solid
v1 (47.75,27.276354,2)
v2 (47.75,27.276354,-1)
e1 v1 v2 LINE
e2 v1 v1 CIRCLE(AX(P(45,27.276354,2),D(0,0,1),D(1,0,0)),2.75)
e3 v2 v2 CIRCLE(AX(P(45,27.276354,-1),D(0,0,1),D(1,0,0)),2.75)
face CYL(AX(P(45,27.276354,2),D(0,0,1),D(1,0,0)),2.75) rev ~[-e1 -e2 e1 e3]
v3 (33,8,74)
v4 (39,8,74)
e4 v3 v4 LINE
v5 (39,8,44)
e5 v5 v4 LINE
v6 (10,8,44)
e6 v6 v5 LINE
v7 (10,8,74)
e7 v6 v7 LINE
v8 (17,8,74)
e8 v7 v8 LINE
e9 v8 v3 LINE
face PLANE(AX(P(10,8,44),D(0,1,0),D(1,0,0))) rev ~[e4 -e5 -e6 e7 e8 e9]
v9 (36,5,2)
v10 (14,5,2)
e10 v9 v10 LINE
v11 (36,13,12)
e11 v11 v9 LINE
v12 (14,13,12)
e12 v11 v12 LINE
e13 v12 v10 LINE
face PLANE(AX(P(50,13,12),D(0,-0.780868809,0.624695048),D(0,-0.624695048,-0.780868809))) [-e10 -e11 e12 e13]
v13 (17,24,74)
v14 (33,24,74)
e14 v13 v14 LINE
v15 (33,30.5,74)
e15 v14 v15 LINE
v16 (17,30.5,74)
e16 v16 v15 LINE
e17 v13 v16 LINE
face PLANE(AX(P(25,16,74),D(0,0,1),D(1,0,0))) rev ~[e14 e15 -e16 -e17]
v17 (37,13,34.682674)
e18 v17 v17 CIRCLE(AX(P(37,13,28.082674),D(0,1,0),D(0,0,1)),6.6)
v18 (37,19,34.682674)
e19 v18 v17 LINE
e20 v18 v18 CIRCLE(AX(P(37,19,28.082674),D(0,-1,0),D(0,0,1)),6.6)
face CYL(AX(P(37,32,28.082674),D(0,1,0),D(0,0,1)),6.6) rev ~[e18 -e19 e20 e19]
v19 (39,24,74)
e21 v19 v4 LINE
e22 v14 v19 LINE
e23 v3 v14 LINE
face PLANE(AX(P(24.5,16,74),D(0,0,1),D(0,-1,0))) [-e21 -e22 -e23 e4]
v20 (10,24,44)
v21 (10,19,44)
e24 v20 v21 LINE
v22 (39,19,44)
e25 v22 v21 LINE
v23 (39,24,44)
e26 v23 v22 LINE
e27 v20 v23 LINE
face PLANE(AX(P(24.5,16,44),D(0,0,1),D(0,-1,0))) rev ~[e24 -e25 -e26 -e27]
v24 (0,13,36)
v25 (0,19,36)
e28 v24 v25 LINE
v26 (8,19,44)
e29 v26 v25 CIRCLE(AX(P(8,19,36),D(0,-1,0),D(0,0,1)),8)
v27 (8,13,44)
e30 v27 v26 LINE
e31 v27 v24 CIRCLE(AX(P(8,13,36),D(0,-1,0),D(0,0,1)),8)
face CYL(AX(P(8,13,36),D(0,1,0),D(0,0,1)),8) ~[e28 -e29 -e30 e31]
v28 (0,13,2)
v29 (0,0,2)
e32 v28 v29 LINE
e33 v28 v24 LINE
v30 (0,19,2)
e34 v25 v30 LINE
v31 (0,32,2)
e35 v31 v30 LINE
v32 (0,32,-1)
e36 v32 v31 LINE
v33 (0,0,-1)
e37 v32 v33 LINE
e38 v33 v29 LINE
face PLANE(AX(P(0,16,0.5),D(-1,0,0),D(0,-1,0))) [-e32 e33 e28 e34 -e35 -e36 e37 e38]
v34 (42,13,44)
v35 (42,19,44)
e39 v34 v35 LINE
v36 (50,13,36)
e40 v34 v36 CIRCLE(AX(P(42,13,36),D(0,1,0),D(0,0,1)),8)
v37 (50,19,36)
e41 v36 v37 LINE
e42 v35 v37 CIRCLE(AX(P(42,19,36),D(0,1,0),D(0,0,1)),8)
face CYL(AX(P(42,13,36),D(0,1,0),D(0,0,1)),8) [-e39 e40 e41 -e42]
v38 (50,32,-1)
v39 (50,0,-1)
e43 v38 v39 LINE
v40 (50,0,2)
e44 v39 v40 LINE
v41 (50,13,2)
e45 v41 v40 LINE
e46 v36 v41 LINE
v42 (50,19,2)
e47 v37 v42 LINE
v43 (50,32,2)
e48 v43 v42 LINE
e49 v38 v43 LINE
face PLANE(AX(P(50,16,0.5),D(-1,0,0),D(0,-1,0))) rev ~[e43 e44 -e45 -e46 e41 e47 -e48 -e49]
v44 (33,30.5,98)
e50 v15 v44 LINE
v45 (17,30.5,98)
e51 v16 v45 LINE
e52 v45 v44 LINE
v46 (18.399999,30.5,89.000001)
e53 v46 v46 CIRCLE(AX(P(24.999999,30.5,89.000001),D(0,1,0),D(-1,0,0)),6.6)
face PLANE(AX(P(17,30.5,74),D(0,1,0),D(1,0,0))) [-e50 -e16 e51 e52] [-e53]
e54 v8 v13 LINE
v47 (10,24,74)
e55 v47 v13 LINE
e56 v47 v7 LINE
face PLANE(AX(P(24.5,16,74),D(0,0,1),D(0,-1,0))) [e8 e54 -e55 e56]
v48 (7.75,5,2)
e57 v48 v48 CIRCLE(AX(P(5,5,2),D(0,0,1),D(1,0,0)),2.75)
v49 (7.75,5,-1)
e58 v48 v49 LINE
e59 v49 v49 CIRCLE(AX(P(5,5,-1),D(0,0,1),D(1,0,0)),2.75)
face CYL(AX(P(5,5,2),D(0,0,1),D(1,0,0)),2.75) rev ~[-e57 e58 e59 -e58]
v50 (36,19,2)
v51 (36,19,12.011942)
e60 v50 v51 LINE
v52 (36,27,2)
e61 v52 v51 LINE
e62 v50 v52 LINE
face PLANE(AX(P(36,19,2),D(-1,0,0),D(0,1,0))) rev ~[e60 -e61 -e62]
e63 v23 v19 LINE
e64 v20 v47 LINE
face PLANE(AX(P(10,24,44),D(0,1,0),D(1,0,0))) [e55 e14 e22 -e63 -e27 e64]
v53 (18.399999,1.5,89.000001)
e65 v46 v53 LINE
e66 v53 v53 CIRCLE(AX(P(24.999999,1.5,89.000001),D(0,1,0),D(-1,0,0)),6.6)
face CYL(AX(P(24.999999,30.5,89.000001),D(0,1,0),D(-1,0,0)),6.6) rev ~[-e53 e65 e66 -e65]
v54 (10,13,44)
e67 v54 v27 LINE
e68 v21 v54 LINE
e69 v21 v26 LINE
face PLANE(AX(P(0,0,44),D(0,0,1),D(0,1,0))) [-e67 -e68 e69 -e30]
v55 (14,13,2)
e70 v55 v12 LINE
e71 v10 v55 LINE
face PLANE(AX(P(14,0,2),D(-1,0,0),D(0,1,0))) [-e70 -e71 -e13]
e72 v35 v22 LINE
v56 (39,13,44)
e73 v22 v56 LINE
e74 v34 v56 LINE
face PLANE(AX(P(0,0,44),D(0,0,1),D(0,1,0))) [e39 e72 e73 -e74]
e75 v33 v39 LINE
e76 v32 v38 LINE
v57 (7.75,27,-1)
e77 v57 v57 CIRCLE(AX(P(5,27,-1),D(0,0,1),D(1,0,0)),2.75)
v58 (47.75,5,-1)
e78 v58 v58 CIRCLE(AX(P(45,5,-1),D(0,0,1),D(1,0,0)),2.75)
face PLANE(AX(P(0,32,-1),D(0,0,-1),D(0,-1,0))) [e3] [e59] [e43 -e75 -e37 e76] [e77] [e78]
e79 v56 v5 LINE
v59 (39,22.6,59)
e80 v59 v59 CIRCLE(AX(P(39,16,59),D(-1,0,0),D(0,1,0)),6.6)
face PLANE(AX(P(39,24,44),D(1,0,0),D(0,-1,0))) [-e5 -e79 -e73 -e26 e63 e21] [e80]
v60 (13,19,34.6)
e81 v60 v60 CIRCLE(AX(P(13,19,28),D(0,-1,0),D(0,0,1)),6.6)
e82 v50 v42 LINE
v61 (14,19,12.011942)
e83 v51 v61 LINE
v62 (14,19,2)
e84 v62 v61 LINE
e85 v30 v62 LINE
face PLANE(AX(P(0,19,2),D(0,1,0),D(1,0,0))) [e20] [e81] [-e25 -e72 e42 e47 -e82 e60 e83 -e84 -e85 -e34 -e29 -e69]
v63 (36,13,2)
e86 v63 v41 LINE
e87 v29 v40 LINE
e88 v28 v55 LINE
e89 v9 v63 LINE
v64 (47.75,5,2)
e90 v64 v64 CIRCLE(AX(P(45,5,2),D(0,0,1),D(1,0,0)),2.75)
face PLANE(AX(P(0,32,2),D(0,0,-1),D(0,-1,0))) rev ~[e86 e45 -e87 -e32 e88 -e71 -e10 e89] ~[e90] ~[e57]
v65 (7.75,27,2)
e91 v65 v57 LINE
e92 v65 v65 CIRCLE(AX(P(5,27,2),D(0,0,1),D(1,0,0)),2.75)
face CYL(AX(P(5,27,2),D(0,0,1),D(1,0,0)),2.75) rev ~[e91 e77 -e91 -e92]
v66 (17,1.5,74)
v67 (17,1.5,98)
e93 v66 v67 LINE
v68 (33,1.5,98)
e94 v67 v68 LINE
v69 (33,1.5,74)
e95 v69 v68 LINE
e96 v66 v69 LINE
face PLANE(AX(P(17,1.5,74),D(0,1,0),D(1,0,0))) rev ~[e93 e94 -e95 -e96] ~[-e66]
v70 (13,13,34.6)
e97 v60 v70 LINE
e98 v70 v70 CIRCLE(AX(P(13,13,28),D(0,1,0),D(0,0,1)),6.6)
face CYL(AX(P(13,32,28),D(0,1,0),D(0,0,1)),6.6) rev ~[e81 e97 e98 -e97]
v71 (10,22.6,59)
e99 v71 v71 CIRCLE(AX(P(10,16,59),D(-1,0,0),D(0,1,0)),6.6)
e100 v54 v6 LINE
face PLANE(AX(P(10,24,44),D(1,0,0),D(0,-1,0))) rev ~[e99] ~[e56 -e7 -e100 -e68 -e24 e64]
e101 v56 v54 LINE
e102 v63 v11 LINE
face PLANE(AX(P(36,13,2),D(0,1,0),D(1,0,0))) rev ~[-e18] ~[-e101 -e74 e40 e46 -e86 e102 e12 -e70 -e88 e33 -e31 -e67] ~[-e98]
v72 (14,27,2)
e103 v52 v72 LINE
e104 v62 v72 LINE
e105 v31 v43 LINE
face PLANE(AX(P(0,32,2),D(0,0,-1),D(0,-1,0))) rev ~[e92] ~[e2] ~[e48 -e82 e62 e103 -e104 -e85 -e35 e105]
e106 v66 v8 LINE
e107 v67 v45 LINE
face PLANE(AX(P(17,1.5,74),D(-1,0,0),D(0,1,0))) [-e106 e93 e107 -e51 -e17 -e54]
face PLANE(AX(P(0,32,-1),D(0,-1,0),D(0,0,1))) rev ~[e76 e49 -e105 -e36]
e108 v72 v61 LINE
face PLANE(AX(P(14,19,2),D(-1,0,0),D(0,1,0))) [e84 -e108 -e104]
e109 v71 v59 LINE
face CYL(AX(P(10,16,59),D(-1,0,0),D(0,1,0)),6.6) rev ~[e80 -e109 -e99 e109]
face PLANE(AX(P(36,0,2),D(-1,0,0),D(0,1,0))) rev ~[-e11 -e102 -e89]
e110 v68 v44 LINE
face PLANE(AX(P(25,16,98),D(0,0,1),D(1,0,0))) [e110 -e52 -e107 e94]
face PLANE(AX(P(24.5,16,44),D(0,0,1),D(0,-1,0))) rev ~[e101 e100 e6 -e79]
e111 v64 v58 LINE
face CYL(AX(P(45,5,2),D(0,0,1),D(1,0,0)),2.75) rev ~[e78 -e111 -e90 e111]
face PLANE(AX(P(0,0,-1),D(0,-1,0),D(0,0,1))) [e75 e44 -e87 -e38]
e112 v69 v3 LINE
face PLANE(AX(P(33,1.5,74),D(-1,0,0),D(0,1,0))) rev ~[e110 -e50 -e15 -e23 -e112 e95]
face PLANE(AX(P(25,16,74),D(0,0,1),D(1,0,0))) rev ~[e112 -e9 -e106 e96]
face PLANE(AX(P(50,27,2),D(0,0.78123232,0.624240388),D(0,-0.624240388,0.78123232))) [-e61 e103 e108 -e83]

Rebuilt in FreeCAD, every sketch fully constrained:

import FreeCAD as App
import Part
import Sketcher
from FreeCAD import Vector
Q = App.Units.Quantity


def edges_at(feature, points):
    """Names of the edges that pass closest to the given points."""
    edges = feature.Shape.Edges
    near = lambda p: min(range(len(edges)), key=lambda i: edges[i].distToShape(Part.Vertex(*p))[0])
    return sorted({f"Edge{near(p) + 1}" for p in points})

doc = App.newDocument("Part")
params = doc.addObject("Spreadsheet::Sheet", "Params")
for row, (alias, value) in enumerate([
    ("sketch1_width", "13 mm"),
    ("sketch1_width2", "5 mm"),
    ("sketch1_height", "42 mm"),
    ("pad1_length", "50 mm"),
    ("sketch2_width", "13 mm"),
    ("sketch2_width2", "5 mm"),
    ("sketch2_height", "32 mm"),
    ("sketch2_height2", "42 mm"),
    ("pad2_length", "50 mm"),
    ("sketch3_width", "14 mm"),
    ("sketch3_height", "13 mm"),
    ("pad3_length", "20 mm"),
    ("sketch4_width", "14 mm"),
    ("sketch4_height", "13 mm"),
    ("pad4_length", "20 mm"),
    ("sketch5_width", "14 mm"),
    ("sketch5_height", "13 mm"),
    ("pad5_length", "20 mm"),
    ("sketch6_width", "14 mm"),
    ("sketch6_height", "13 mm"),
    ("pad6_length", "20 mm"),
    ("sketch7_width", "32 mm"),
    ("sketch7_height", "3 mm"),
    ("pad7_length", "50 mm"),
    ("sketch8_diameter", "5.5 mm"),
    ("sketch9_width", "29 mm"),
    ("sketch9_height", "16 mm"),
    ("pad8_length", "30 mm"),
    ("sketch10_diameter", "13.2 mm"),
    ("sketch11_width", "16 mm"),
    ("sketch11_height", "29 mm"),
    ("pad9_length", "24 mm"),
    ("sketch12_diameter", "13.2 mm"),
    ("sketch13_width", "32 mm"),
    ("sketch13_height", "42 mm"),
    ("pad10_length", "50 mm"),
    ("sketch14_diameter", "13.2 mm"),
    ("fillet_radius", "8 mm"),
    ("fillet2_radius", "8 mm"),
], start=1):
    params.set(f"A{row}", alias)
    params.set(f"B{row}", "=" + value)
    params.setAlias(f"B{row}", alias)

body = doc.addObject("PartDesign::Body", "Body")

# Sketch on YZ plane
sketch1 = body.newObject("Sketcher::SketchObject", "Sketch")
sketch1.AttachmentSupport = (doc.getObject("YZ_Plane"), [""])
sketch1.MapMode = "FlatFace"
sketch1.AttachmentOffset = App.Placement(Vector(0, 0, 50), App.Rotation())
sketch1.addGeometry([
    Part.LineSegment(Vector(32, 44, 0), Vector(19, 44, 0)),  # 0
    Part.LineSegment(Vector(19, 44, 0), Vector(19, 12, 0)),  # 1
    Part.LineSegment(Vector(19, 12, 0), Vector(27, 2, 0)),  # 2
    Part.LineSegment(Vector(27, 2, 0), Vector(32, 2, 0)),  # 3
    Part.LineSegment(Vector(32, 2, 0), Vector(32, 44, 0)),  # 4
], False)
sketch1.addConstraint([
    Sketcher.Constraint("Coincident", 0, 2, 1, 1),
    Sketcher.Constraint("Coincident", 1, 2, 2, 1),
    Sketcher.Constraint("Coincident", 2, 2, 3, 1),
    Sketcher.Constraint("Coincident", 3, 2, 4, 1),
    Sketcher.Constraint("Coincident", 4, 2, 0, 1),
    Sketcher.Constraint("Horizontal", 0),
    Sketcher.Constraint("Vertical", 1),
    Sketcher.Constraint("Horizontal", 3),
    Sketcher.Constraint("Vertical", 4),
    Sketcher.Constraint("DistanceX", 0, 2, 0, 1, Q("13 mm")),
    Sketcher.Constraint("DistanceX", 3, 1, 3, 2, Q("5 mm")),
    Sketcher.Constraint("DistanceY", 4, 1, 4, 2, Q("42 mm")),
    Sketcher.Constraint("DistanceX", -1, 1, 0, 2, Q("19 mm")),
    Sketcher.Constraint("DistanceY", -1, 1, 0, 2, Q("44 mm")),
    Sketcher.Constraint("DistanceY", 1, 2, 1, 1, Q("31.988058 mm")),
])
sketch1.setExpression("Constraints[9]", "Params.sketch1_width")
sketch1.setExpression("Constraints[10]", "Params.sketch1_width2")
sketch1.setExpression("Constraints[11]", "Params.sketch1_height")
pad1 = body.newObject("PartDesign::Pad", "Pad")
pad1.Profile = sketch1
pad1.setExpression("Length", "Params.pad1_length")
pad1.Reversed = True
body2 = doc.addObject("PartDesign::Body", "Body001")

# Sketch on YZ plane
sketch2 = body2.newObject("Sketcher::SketchObject", "Sketch001")
sketch2.AttachmentSupport = (doc.getObject("YZ_Plane001"), [""])
sketch2.MapMode = "FlatFace"
sketch2.AttachmentOffset = App.Placement(Vector(0, 0, 50), App.Rotation())
sketch2.addGeometry([
    Part.LineSegment(Vector(13, 12, 0), Vector(13, 44, 0)),  # 0
    Part.LineSegment(Vector(13, 44, 0), Vector(0, 44, 0)),  # 1
    Part.LineSegment(Vector(0, 44, 0), Vector(0, 2, 0)),  # 2
    Part.LineSegment(Vector(0, 2, 0), Vector(5, 2, 0)),  # 3
    Part.LineSegment(Vector(5, 2, 0), Vector(13, 12, 0)),  # 4
], False)
sketch2.addConstraint([
    Sketcher.Constraint("Coincident", 0, 2, 1, 1),
    Sketcher.Constraint("Coincident", 1, 2, 2, 1),
    Sketcher.Constraint("Coincident", 2, 2, 3, 1),
    Sketcher.Constraint("Coincident", 3, 2, 4, 1),
    Sketcher.Constraint("Coincident", 4, 2, 0, 1),
    Sketcher.Constraint("Vertical", 0),
    Sketcher.Constraint("Horizontal", 1),
    Sketcher.Constraint("Vertical", 2),
    Sketcher.Constraint("Horizontal", 3),
    Sketcher.Constraint("PointOnObject", 1, 2, -2),
    Sketcher.Constraint("DistanceX", 1, 2, 1, 1, Q("13 mm")),
    Sketcher.Constraint("DistanceX", 3, 1, 3, 2, Q("5 mm")),
    Sketcher.Constraint("DistanceY", 0, 1, 0, 2, Q("32 mm")),
    Sketcher.Constraint("DistanceY", 2, 2, 2, 1, Q("42 mm")),
    Sketcher.Constraint("DistanceY", -1, 1, 0, 2, Q("44 mm")),
])
sketch2.setExpression("Constraints[10]", "Params.sketch2_width")
sketch2.setExpression("Constraints[11]", "Params.sketch2_width2")
sketch2.setExpression("Constraints[12]", "Params.sketch2_height")
sketch2.setExpression("Constraints[13]", "Params.sketch2_height2")
pad2 = body2.newObject("PartDesign::Pad", "Pad001")
pad2.Profile = sketch2
pad2.setExpression("Length", "Params.pad2_length")
pad2.Reversed = True
body3 = doc.addObject("PartDesign::Body", "Body002")

# Sketch on XY plane
sketch3 = body3.newObject("Sketcher::SketchObject", "Sketch002")
sketch3.AttachmentSupport = (doc.getObject("XY_Plane002"), [""])
sketch3.MapMode = "FlatFace"
sketch3.AttachmentOffset = App.Placement(Vector(0, 0, 2), App.Rotation())
sketch3.addGeometry([
    Part.LineSegment(Vector(0, 13, 0), Vector(0, 0, 0)),
    Part.LineSegment(Vector(0, 0, 0), Vector(14, 0, 0)),
    Part.LineSegment(Vector(14, 0, 0), Vector(14, 13, 0)),
    Part.LineSegment(Vector(14, 13, 0), Vector(0, 13, 0)),
], False)
sketch3.addConstraint([
    Sketcher.Constraint("Coincident", 0, 2, 1, 1),
    Sketcher.Constraint("Coincident", 1, 2, 2, 1),
    Sketcher.Constraint("Coincident", 2, 2, 3, 1),
    Sketcher.Constraint("Coincident", 3, 2, 0, 1),
    Sketcher.Constraint("Vertical", 0),
    Sketcher.Constraint("Horizontal", 1),
    Sketcher.Constraint("Vertical", 2),
    Sketcher.Constraint("Horizontal", 3),
    Sketcher.Constraint("Coincident", 0, 2, -1, 1),
    Sketcher.Constraint("DistanceX", 1, 1, 1, 2, Q("14 mm")),
    Sketcher.Constraint("DistanceY", 0, 2, 0, 1, Q("13 mm")),
])
sketch3.setExpression("Constraints[9]", "Params.sketch3_width")
sketch3.setExpression("Constraints[10]", "Params.sketch3_height")
pad3 = body3.newObject("PartDesign::Pad", "Pad002")
pad3.Profile = sketch3
pad3.setExpression("Length", "Params.pad3_length")
body4 = doc.addObject("PartDesign::Body", "Body003")

# Sketch on XY plane
sketch4 = body4.newObject("Sketcher::SketchObject", "Sketch003")
sketch4.AttachmentSupport = (doc.getObject("XY_Plane003"), [""])
sketch4.MapMode = "FlatFace"
sketch4.AttachmentOffset = App.Placement(Vector(0, 0, 2), App.Rotation())
sketch4.addGeometry([
    Part.LineSegment(Vector(0, 32, 0), Vector(0, 19, 0)),
    Part.LineSegment(Vector(0, 19, 0), Vector(14, 19, 0)),
    Part.LineSegment(Vector(14, 19, 0), Vector(14, 32, 0)),
    Part.LineSegment(Vector(14, 32, 0), Vector(0, 32, 0)),
], False)
sketch4.addConstraint([
    Sketcher.Constraint("Coincident", 0, 2, 1, 1),
    Sketcher.Constraint("Coincident", 1, 2, 2, 1),
    Sketcher.Constraint("Coincident", 2, 2, 3, 1),
    Sketcher.Constraint("Coincident", 3, 2, 0, 1),
    Sketcher.Constraint("Vertical", 0),
    Sketcher.Constraint("Horizontal", 1),
    Sketcher.Constraint("Vertical", 2),
    Sketcher.Constraint("Horizontal", 3),
    Sketcher.Constraint("PointOnObject", 0, 2, -2),
    Sketcher.Constraint("DistanceX", 1, 1, 1, 2, Q("14 mm")),
    Sketcher.Constraint("DistanceY", 0, 2, 0, 1, Q("13 mm")),
    Sketcher.Constraint("DistanceY", -1, 1, 0, 2, Q("19 mm")),
])
sketch4.setExpression("Constraints[9]", "Params.sketch4_width")
sketch4.setExpression("Constraints[10]", "Params.sketch4_height")
pad4 = body4.newObject("PartDesign::Pad", "Pad003")
pad4.Profile = sketch4
pad4.setExpression("Length", "Params.pad4_length")
body5 = doc.addObject("PartDesign::Body", "Body004")

# Sketch on XY plane
sketch5 = body5.newObject("Sketcher::SketchObject", "Sketch004")
sketch5.AttachmentSupport = (doc.getObject("XY_Plane004"), [""])
sketch5.MapMode = "FlatFace"
sketch5.AttachmentOffset = App.Placement(Vector(0, 0, 2), App.Rotation())
sketch5.addGeometry([
    Part.LineSegment(Vector(36, 13, 0), Vector(36, 0, 0)),
    Part.LineSegment(Vector(36, 0, 0), Vector(50, 0, 0)),
    Part.LineSegment(Vector(50, 0, 0), Vector(50, 13, 0)),
    Part.LineSegment(Vector(50, 13, 0), Vector(36, 13, 0)),
], False)
sketch5.addConstraint([
    Sketcher.Constraint("Coincident", 0, 2, 1, 1),
    Sketcher.Constraint("Coincident", 1, 2, 2, 1),
    Sketcher.Constraint("Coincident", 2, 2, 3, 1),
    Sketcher.Constraint("Coincident", 3, 2, 0, 1),
    Sketcher.Constraint("Vertical", 0),
    Sketcher.Constraint("Horizontal", 1),
    Sketcher.Constraint("Vertical", 2),
    Sketcher.Constraint("Horizontal", 3),
    Sketcher.Constraint("PointOnObject", 0, 2, -1),
    Sketcher.Constraint("DistanceX", 1, 1, 1, 2, Q("14 mm")),
    Sketcher.Constraint("DistanceY", 0, 2, 0, 1, Q("13 mm")),
    Sketcher.Constraint("DistanceX", -1, 1, 0, 2, Q("36 mm")),
])
sketch5.setExpression("Constraints[9]", "Params.sketch5_width")
sketch5.setExpression("Constraints[10]", "Params.sketch5_height")
pad5 = body5.newObject("PartDesign::Pad", "Pad004")
pad5.Profile = sketch5
pad5.setExpression("Length", "Params.pad5_length")
body6 = doc.addObject("PartDesign::Body", "Body005")

# Sketch on XY plane
sketch6 = body6.newObject("Sketcher::SketchObject", "Sketch005")
sketch6.AttachmentSupport = (doc.getObject("XY_Plane005"), [""])
sketch6.MapMode = "FlatFace"
sketch6.AttachmentOffset = App.Placement(Vector(0, 0, 2), App.Rotation())
sketch6.addGeometry([
    Part.LineSegment(Vector(36, 32, 0), Vector(36, 19, 0)),
    Part.LineSegment(Vector(36, 19, 0), Vector(50, 19, 0)),
    Part.LineSegment(Vector(50, 19, 0), Vector(50, 32, 0)),
    Part.LineSegment(Vector(50, 32, 0), Vector(36, 32, 0)),
], False)
sketch6.addConstraint([
    Sketcher.Constraint("Coincident", 0, 2, 1, 1),
    Sketcher.Constraint("Coincident", 1, 2, 2, 1),
    Sketcher.Constraint("Coincident", 2, 2, 3, 1),
    Sketcher.Constraint("Coincident", 3, 2, 0, 1),
    Sketcher.Constraint("Vertical", 0),
    Sketcher.Constraint("Horizontal", 1),
    Sketcher.Constraint("Vertical", 2),
    Sketcher.Constraint("Horizontal", 3),
    Sketcher.Constraint("DistanceX", 1, 1, 1, 2, Q("14 mm")),
    Sketcher.Constraint("DistanceY", 0, 2, 0, 1, Q("13 mm")),
    Sketcher.Constraint("DistanceX", -1, 1, 0, 2, Q("36 mm")),
    Sketcher.Constraint("DistanceY", -1, 1, 0, 2, Q("19 mm")),
])
sketch6.setExpression("Constraints[8]", "Params.sketch6_width")
sketch6.setExpression("Constraints[9]", "Params.sketch6_height")
pad6 = body6.newObject("PartDesign::Pad", "Pad005")
pad6.Profile = sketch6
pad6.setExpression("Length", "Params.pad6_length")
body7 = doc.addObject("PartDesign::Body", "Body006")

# Sketch on YZ plane
sketch7 = body7.newObject("Sketcher::SketchObject", "Sketch006")
sketch7.AttachmentSupport = (doc.getObject("YZ_Plane006"), [""])
sketch7.MapMode = "FlatFace"
sketch7.addGeometry([
    Part.LineSegment(Vector(32, 2, 0), Vector(32, -1, 0)),
    Part.LineSegment(Vector(32, -1, 0), Vector(0, -1, 0)),
    Part.LineSegment(Vector(0, -1, 0), Vector(0, 2, 0)),
    Part.LineSegment(Vector(0, 2, 0), Vector(32, 2, 0)),
], False)
sketch7.addConstraint([
    Sketcher.Constraint("Coincident", 0, 2, 1, 1),
    Sketcher.Constraint("Coincident", 1, 2, 2, 1),
    Sketcher.Constraint("Coincident", 2, 2, 3, 1),
    Sketcher.Constraint("Coincident", 3, 2, 0, 1),
    Sketcher.Constraint("Vertical", 0),
    Sketcher.Constraint("Horizontal", 1),
    Sketcher.Constraint("Vertical", 2),
    Sketcher.Constraint("Horizontal", 3),
    Sketcher.Constraint("PointOnObject", 1, 2, -2),
    Sketcher.Constraint("DistanceX", 1, 2, 1, 1, Q("32 mm")),
    Sketcher.Constraint("DistanceY", 0, 2, 0, 1, Q("3 mm")),
    Sketcher.Constraint("DistanceY", 0, 2, -1, 1, Q("1 mm")),
])
sketch7.setExpression("Constraints[9]", "Params.sketch7_width")
sketch7.setExpression("Constraints[10]", "Params.sketch7_height")
pad7 = body7.newObject("PartDesign::Pad", "Pad006")
pad7.Profile = sketch7
pad7.setExpression("Length", "Params.pad7_length")

# Sketch on XY plane
sketch8 = body7.newObject("Sketcher::SketchObject", "Sketch007")
sketch8.AttachmentSupport = (doc.getObject("XY_Plane006"), [""])
sketch8.MapMode = "FlatFace"
sketch8.AttachmentOffset = App.Placement(Vector(0, 0, 2), App.Rotation())
sketch8.addGeometry([
    Part.Circle(Vector(5, 27, 0), Vector(0, 0, 1), 2.8),
    Part.Circle(Vector(5, 5, 0), Vector(0, 0, 1), 2.8),
    Part.Circle(Vector(45, 5, 0), Vector(0, 0, 1), 2.8),
    Part.Circle(Vector(45, 27.3, 0), Vector(0, 0, 1), 2.8),
], False)
sketch8.addConstraint([
    Sketcher.Constraint("Equal", 0, 1),
    Sketcher.Constraint("Equal", 1, 2),
    Sketcher.Constraint("Equal", 2, 3),
    Sketcher.Constraint("Horizontal", 1, 3, 2, 3),
    Sketcher.Constraint("Vertical", 0, 3, 1, 3),
    Sketcher.Constraint("Vertical", 2, 3, 3, 3),
    Sketcher.Constraint("Diameter", 0, Q("5.5 mm")),
    Sketcher.Constraint("DistanceX", -1, 1, 0, 3, Q("5 mm")),
    Sketcher.Constraint("DistanceY", -1, 1, 0, 3, Q("27 mm")),
    Sketcher.Constraint("DistanceY", -1, 1, 1, 3, Q("5 mm")),
    Sketcher.Constraint("DistanceX", -1, 1, 2, 3, Q("45 mm")),
    Sketcher.Constraint("DistanceY", -1, 1, 3, 3, Q("27.276354 mm")),
])
sketch8.setExpression("Constraints[6]", "Params.sketch8_diameter")
pocket1 = body7.newObject("PartDesign::Pocket", "Pocket")
pocket1.Profile = sketch8
pocket1.Type = "ThroughAll"
body8 = doc.addObject("PartDesign::Body", "Body007")

# Sketch on XY plane
sketch9 = body8.newObject("Sketcher::SketchObject", "Sketch008")
sketch9.AttachmentSupport = (doc.getObject("XY_Plane007"), [""])
sketch9.MapMode = "FlatFace"
sketch9.AttachmentOffset = App.Placement(Vector(0, 0, 44), App.Rotation())
sketch9.addGeometry([
    Part.LineSegment(Vector(39, 24, 0), Vector(10, 24, 0)),
    Part.LineSegment(Vector(10, 24, 0), Vector(10, 8, 0)),
    Part.LineSegment(Vector(10, 8, 0), Vector(39, 8, 0)),
    Part.LineSegment(Vector(39, 8, 0), Vector(39, 24, 0)),
], False)
sketch9.addConstraint([
    Sketcher.Constraint("Coincident", 0, 2, 1, 1),
    Sketcher.Constraint("Coincident", 1, 2, 2, 1),
    Sketcher.Constraint("Coincident", 2, 2, 3, 1),
    Sketcher.Constraint("Coincident", 3, 2, 0, 1),
    Sketcher.Constraint("Horizontal", 0),
    Sketcher.Constraint("Vertical", 1),
    Sketcher.Constraint("Horizontal", 2),
    Sketcher.Constraint("Vertical", 3),
    Sketcher.Constraint("DistanceX", 0, 2, 0, 1, Q("29 mm")),
    Sketcher.Constraint("DistanceY", 1, 2, 1, 1, Q("16 mm")),
    Sketcher.Constraint("DistanceX", -1, 1, 0, 2, Q("10 mm")),
    Sketcher.Constraint("DistanceY", -1, 1, 0, 2, Q("24 mm")),
])
sketch9.setExpression("Constraints[8]", "Params.sketch9_width")
sketch9.setExpression("Constraints[9]", "Params.sketch9_height")
pad8 = body8.newObject("PartDesign::Pad", "Pad007")
pad8.Profile = sketch9
pad8.setExpression("Length", "Params.pad8_length")

# Sketch on YZ plane
sketch10 = body8.newObject("Sketcher::SketchObject", "Sketch009")
sketch10.AttachmentSupport = (doc.getObject("YZ_Plane007"), [""])
sketch10.MapMode = "FlatFace"
sketch10.AttachmentOffset = App.Placement(Vector(0, 0, 10), App.Rotation())
sketch10.addGeometry(Part.Circle(Vector(16, 59, 0), Vector(0, 0, 1), 7), False)
sketch10.addConstraint([
    Sketcher.Constraint("Diameter", 0, Q("13.2 mm")),
    Sketcher.Constraint("DistanceX", -1, 1, 0, 3, Q("16 mm")),
    Sketcher.Constraint("DistanceY", -1, 1, 0, 3, Q("59 mm")),
])
sketch10.setExpression("Constraints[0]", "Params.sketch10_diameter")
pocket2 = body8.newObject("PartDesign::Pocket", "Pocket001")
pocket2.Profile = sketch10
pocket2.Type = "ThroughAll"
pocket2.Reversed = True
body9 = doc.addObject("PartDesign::Body", "Body008")

# Sketch on XY plane
sketch11 = body9.newObject("Sketcher::SketchObject", "Sketch010")
sketch11.AttachmentSupport = (doc.getObject("XY_Plane008"), [""])
sketch11.MapMode = "FlatFace"
sketch11.AttachmentOffset = App.Placement(Vector(0, 0, 74), App.Rotation())
sketch11.addGeometry([
    Part.LineSegment(Vector(17, 30, 0), Vector(17, 2, 0)),
    Part.LineSegment(Vector(17, 2, 0), Vector(33, 2, 0)),
    Part.LineSegment(Vector(33, 2, 0), Vector(33, 30, 0)),
    Part.LineSegment(Vector(33, 30, 0), Vector(17, 30, 0)),
], False)
sketch11.addConstraint([
    Sketcher.Constraint("Coincident", 0, 2, 1, 1),
    Sketcher.Constraint("Coincident", 1, 2, 2, 1),
    Sketcher.Constraint("Coincident", 2, 2, 3, 1),
    Sketcher.Constraint("Coincident", 3, 2, 0, 1),
    Sketcher.Constraint("Vertical", 0),
    Sketcher.Constraint("Horizontal", 1),
    Sketcher.Constraint("Vertical", 2),
    Sketcher.Constraint("Horizontal", 3),
    Sketcher.Constraint("DistanceX", 1, 1, 1, 2, Q("16 mm")),
    Sketcher.Constraint("DistanceY", 0, 2, 0, 1, Q("29 mm")),
    Sketcher.Constraint("DistanceX", -1, 1, 0, 2, Q("17 mm")),
    Sketcher.Constraint("DistanceY", -1, 1, 0, 2, Q("1.5 mm")),
])
sketch11.setExpression("Constraints[8]", "Params.sketch11_width")
sketch11.setExpression("Constraints[9]", "Params.sketch11_height")
pad9 = body9.newObject("PartDesign::Pad", "Pad008")
pad9.Profile = sketch11
pad9.setExpression("Length", "Params.pad9_length")

# Sketch on XZ plane
sketch12 = body9.newObject("Sketcher::SketchObject", "Sketch011")
sketch12.AttachmentSupport = (doc.getObject("XZ_Plane008"), [""])
sketch12.MapMode = "FlatFace"
sketch12.AttachmentOffset = App.Placement(Vector(0, 0, -30.5), App.Rotation())
sketch12.addGeometry(Part.Circle(Vector(25, 89, 0), Vector(0, 0, 1), 7), False)
sketch12.addConstraint([
    Sketcher.Constraint("Diameter", 0, Q("13.2 mm")),
    Sketcher.Constraint("DistanceX", -1, 1, 0, 3, Q("24.999999 mm")),
    Sketcher.Constraint("DistanceY", -1, 1, 0, 3, Q("89.000001 mm")),
])
sketch12.setExpression("Constraints[0]", "Params.sketch12_diameter")
pocket3 = body9.newObject("PartDesign::Pocket", "Pocket002")
pocket3.Profile = sketch12
pocket3.Type = "ThroughAll"
pocket3.Reversed = True
body10 = doc.addObject("PartDesign::Body", "Body009")

# Sketch on YZ plane
sketch13 = body10.newObject("Sketcher::SketchObject", "Sketch012")
sketch13.AttachmentSupport = (doc.getObject("YZ_Plane009"), [""])
sketch13.MapMode = "FlatFace"
sketch13.addGeometry([
    Part.LineSegment(Vector(0, 44, 0), Vector(0, 2, 0)),
    Part.LineSegment(Vector(0, 2, 0), Vector(32, 2, 0)),
    Part.LineSegment(Vector(32, 2, 0), Vector(32, 44, 0)),
    Part.LineSegment(Vector(32, 44, 0), Vector(0, 44, 0)),
], False)
sketch13.addConstraint([
    Sketcher.Constraint("Coincident", 0, 2, 1, 1),
    Sketcher.Constraint("Coincident", 1, 2, 2, 1),
    Sketcher.Constraint("Coincident", 2, 2, 3, 1),
    Sketcher.Constraint("Coincident", 3, 2, 0, 1),
    Sketcher.Constraint("Vertical", 0),
    Sketcher.Constraint("Horizontal", 1),
    Sketcher.Constraint("Vertical", 2),
    Sketcher.Constraint("Horizontal", 3),
    Sketcher.Constraint("PointOnObject", 0, 2, -2),
    Sketcher.Constraint("DistanceX", 1, 1, 1, 2, Q("32 mm")),
    Sketcher.Constraint("DistanceY", 0, 2, 0, 1, Q("42 mm")),
    Sketcher.Constraint("DistanceY", -1, 1, 0, 2, Q("2 mm")),
])
sketch13.setExpression("Constraints[9]", "Params.sketch13_width")
sketch13.setExpression("Constraints[10]", "Params.sketch13_height")
pad10 = body10.newObject("PartDesign::Pad", "Pad009")
pad10.Profile = sketch13
pad10.setExpression("Length", "Params.pad10_length")

# Sketch on XZ plane
sketch14 = body10.newObject("Sketcher::SketchObject", "Sketch013")
sketch14.AttachmentSupport = (doc.getObject("XZ_Plane009"), [""])
sketch14.MapMode = "FlatFace"
sketch14.AttachmentOffset = App.Placement(Vector(0, 0, -32), App.Rotation())
sketch14.addGeometry([
    Part.Circle(Vector(37, 28, 0), Vector(0, 0, 1), 7),
    Part.Circle(Vector(13, 28, 0), Vector(0, 0, 1), 7),
], False)
sketch14.addConstraint([
    Sketcher.Constraint("Equal", 0, 1),
    Sketcher.Constraint("Diameter", 0, Q("13.2 mm")),
    Sketcher.Constraint("DistanceX", -1, 1, 0, 3, Q("37 mm")),
    Sketcher.Constraint("DistanceX", -1, 1, 1, 3, Q("13 mm")),
    Sketcher.Constraint("DistanceY", -1, 1, 1, 3, Q("28 mm")),
    Sketcher.Constraint("DistanceY", -1, 1, 0, 3, Q("28.082674 mm")),
])
sketch14.setExpression("Constraints[1]", "Params.sketch14_diameter")
pocket4 = body10.newObject("PartDesign::Pocket", "Pocket003")
pocket4.Profile = sketch14
pocket4.Type = "ThroughAll"
pocket4.Reversed = True
doc.recompute()

boolean = body10.newObject("PartDesign::Boolean", "Boolean")
boolean.Type = "Cut"
boolean.addObjects([body])
doc.recompute()

boolean2 = body10.newObject("PartDesign::Boolean", "Boolean001")
boolean2.Type = "Cut"
boolean2.addObjects([body2])
doc.recompute()

boolean3 = body10.newObject("PartDesign::Boolean", "Boolean002")
boolean3.Type = "Cut"
boolean3.addObjects([body3])
doc.recompute()

boolean4 = body10.newObject("PartDesign::Boolean", "Boolean003")
boolean4.Type = "Cut"
boolean4.addObjects([body4])
doc.recompute()

boolean5 = body10.newObject("PartDesign::Boolean", "Boolean004")
boolean5.Type = "Cut"
boolean5.addObjects([body5])
doc.recompute()

boolean6 = body10.newObject("PartDesign::Boolean", "Boolean005")
boolean6.Type = "Cut"
boolean6.addObjects([body6])
doc.recompute()

boolean7 = body10.newObject("PartDesign::Boolean", "Boolean006")
boolean7.Type = "Fuse"
boolean7.addObjects([body7])
doc.recompute()

boolean8 = body10.newObject("PartDesign::Boolean", "Boolean007")
boolean8.Type = "Fuse"
boolean8.addObjects([body8])
doc.recompute()

boolean9 = body10.newObject("PartDesign::Boolean", "Boolean008")
boolean9.Type = "Fuse"
boolean9.addObjects([body9])
doc.recompute()

fillet = body10.newObject("PartDesign::Fillet", "Fillet")
fillet.Base = (boolean9, edges_at(boolean9, [(50, 16, 44)]))
fillet.setExpression("Radius", "Params.fillet_radius")
doc.recompute()

fillet2 = body10.newObject("PartDesign::Fillet", "Fillet001")
fillet2.Base = (fillet, edges_at(fillet, [(0, 16, 44)]))
fillet2.setExpression("Radius", "Params.fillet2_radius")

doc.recompute()
